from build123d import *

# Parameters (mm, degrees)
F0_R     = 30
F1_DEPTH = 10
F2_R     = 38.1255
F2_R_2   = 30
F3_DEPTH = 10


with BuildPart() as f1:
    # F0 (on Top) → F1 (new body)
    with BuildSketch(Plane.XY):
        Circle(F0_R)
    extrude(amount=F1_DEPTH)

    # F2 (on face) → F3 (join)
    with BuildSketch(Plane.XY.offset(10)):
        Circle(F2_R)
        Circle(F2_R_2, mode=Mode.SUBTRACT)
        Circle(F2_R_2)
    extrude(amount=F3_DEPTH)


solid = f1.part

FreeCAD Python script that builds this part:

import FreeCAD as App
import Part
import Sketcher

V = App.Vector
Q = App.Units.Quantity

doc = App.newDocument("Part")
params = doc.addObject("Spreadsheet::Sheet", "Params")
for row, (alias, value) in enumerate([
    ("sketch1_diameter", "60 mm"),
    ("pad1_length", "10 mm"),
    ("pad2_length", "10 mm"),
], start=1):
    params.set(f"A{row}", alias)
    params.set(f"B{row}", "=" + value)
    params.setAlias(f"B{row}", alias)

body = doc.addObject("PartDesign::Body", "Body")

sketch1 = doc.addObject("Sketcher::SketchObject", "Sketch")
body.addObject(sketch1)
sketch1.AttachmentSupport = (doc.XY_Plane, [""])
sketch1.MapMode = "FlatFace"
sketch1.addGeometry(Part.Circle(V(0, 0, 0), V(0, 0, 1), 30), False)
sketch1.addConstraint([
    Sketcher.Constraint("Coincident", 0, 3, -1, 1),
    Sketcher.Constraint("Diameter", 0, Q("60 mm")),
])
sketch1.setExpression("Constraints[1]", "Params.sketch1_diameter")
pad1 = doc.addObject("PartDesign::Pad", "Pad")
body.addObject(pad1)
pad1.Profile = sketch1
pad1.setExpression("Length", "Params.pad1_length")

sketch2 = doc.addObject("Sketcher::SketchObject", "Sketch001")
body.addObject(sketch2)
sketch2.AttachmentSupport = (doc.XY_Plane, [""])
sketch2.MapMode = "FlatFace"
sketch2.AttachmentOffset = App.Placement(V(0, 0, 10), App.Rotation())
sketch2.addGeometry(Part.Circle(V(0, 0, 0), V(0, 0, 1), 38), False)
sketch2.addConstraint([
    Sketcher.Constraint("Coincident", 0, 3, -1, 1),
    Sketcher.Constraint("Diameter", 0, Q("76.251 mm")),
])
pad2 = doc.addObject("PartDesign::Pad", "Pad001")
body.addObject(pad2)
pad2.Profile = sketch2
pad2.setExpression("Length", "Params.pad2_length")

doc.recompute()
